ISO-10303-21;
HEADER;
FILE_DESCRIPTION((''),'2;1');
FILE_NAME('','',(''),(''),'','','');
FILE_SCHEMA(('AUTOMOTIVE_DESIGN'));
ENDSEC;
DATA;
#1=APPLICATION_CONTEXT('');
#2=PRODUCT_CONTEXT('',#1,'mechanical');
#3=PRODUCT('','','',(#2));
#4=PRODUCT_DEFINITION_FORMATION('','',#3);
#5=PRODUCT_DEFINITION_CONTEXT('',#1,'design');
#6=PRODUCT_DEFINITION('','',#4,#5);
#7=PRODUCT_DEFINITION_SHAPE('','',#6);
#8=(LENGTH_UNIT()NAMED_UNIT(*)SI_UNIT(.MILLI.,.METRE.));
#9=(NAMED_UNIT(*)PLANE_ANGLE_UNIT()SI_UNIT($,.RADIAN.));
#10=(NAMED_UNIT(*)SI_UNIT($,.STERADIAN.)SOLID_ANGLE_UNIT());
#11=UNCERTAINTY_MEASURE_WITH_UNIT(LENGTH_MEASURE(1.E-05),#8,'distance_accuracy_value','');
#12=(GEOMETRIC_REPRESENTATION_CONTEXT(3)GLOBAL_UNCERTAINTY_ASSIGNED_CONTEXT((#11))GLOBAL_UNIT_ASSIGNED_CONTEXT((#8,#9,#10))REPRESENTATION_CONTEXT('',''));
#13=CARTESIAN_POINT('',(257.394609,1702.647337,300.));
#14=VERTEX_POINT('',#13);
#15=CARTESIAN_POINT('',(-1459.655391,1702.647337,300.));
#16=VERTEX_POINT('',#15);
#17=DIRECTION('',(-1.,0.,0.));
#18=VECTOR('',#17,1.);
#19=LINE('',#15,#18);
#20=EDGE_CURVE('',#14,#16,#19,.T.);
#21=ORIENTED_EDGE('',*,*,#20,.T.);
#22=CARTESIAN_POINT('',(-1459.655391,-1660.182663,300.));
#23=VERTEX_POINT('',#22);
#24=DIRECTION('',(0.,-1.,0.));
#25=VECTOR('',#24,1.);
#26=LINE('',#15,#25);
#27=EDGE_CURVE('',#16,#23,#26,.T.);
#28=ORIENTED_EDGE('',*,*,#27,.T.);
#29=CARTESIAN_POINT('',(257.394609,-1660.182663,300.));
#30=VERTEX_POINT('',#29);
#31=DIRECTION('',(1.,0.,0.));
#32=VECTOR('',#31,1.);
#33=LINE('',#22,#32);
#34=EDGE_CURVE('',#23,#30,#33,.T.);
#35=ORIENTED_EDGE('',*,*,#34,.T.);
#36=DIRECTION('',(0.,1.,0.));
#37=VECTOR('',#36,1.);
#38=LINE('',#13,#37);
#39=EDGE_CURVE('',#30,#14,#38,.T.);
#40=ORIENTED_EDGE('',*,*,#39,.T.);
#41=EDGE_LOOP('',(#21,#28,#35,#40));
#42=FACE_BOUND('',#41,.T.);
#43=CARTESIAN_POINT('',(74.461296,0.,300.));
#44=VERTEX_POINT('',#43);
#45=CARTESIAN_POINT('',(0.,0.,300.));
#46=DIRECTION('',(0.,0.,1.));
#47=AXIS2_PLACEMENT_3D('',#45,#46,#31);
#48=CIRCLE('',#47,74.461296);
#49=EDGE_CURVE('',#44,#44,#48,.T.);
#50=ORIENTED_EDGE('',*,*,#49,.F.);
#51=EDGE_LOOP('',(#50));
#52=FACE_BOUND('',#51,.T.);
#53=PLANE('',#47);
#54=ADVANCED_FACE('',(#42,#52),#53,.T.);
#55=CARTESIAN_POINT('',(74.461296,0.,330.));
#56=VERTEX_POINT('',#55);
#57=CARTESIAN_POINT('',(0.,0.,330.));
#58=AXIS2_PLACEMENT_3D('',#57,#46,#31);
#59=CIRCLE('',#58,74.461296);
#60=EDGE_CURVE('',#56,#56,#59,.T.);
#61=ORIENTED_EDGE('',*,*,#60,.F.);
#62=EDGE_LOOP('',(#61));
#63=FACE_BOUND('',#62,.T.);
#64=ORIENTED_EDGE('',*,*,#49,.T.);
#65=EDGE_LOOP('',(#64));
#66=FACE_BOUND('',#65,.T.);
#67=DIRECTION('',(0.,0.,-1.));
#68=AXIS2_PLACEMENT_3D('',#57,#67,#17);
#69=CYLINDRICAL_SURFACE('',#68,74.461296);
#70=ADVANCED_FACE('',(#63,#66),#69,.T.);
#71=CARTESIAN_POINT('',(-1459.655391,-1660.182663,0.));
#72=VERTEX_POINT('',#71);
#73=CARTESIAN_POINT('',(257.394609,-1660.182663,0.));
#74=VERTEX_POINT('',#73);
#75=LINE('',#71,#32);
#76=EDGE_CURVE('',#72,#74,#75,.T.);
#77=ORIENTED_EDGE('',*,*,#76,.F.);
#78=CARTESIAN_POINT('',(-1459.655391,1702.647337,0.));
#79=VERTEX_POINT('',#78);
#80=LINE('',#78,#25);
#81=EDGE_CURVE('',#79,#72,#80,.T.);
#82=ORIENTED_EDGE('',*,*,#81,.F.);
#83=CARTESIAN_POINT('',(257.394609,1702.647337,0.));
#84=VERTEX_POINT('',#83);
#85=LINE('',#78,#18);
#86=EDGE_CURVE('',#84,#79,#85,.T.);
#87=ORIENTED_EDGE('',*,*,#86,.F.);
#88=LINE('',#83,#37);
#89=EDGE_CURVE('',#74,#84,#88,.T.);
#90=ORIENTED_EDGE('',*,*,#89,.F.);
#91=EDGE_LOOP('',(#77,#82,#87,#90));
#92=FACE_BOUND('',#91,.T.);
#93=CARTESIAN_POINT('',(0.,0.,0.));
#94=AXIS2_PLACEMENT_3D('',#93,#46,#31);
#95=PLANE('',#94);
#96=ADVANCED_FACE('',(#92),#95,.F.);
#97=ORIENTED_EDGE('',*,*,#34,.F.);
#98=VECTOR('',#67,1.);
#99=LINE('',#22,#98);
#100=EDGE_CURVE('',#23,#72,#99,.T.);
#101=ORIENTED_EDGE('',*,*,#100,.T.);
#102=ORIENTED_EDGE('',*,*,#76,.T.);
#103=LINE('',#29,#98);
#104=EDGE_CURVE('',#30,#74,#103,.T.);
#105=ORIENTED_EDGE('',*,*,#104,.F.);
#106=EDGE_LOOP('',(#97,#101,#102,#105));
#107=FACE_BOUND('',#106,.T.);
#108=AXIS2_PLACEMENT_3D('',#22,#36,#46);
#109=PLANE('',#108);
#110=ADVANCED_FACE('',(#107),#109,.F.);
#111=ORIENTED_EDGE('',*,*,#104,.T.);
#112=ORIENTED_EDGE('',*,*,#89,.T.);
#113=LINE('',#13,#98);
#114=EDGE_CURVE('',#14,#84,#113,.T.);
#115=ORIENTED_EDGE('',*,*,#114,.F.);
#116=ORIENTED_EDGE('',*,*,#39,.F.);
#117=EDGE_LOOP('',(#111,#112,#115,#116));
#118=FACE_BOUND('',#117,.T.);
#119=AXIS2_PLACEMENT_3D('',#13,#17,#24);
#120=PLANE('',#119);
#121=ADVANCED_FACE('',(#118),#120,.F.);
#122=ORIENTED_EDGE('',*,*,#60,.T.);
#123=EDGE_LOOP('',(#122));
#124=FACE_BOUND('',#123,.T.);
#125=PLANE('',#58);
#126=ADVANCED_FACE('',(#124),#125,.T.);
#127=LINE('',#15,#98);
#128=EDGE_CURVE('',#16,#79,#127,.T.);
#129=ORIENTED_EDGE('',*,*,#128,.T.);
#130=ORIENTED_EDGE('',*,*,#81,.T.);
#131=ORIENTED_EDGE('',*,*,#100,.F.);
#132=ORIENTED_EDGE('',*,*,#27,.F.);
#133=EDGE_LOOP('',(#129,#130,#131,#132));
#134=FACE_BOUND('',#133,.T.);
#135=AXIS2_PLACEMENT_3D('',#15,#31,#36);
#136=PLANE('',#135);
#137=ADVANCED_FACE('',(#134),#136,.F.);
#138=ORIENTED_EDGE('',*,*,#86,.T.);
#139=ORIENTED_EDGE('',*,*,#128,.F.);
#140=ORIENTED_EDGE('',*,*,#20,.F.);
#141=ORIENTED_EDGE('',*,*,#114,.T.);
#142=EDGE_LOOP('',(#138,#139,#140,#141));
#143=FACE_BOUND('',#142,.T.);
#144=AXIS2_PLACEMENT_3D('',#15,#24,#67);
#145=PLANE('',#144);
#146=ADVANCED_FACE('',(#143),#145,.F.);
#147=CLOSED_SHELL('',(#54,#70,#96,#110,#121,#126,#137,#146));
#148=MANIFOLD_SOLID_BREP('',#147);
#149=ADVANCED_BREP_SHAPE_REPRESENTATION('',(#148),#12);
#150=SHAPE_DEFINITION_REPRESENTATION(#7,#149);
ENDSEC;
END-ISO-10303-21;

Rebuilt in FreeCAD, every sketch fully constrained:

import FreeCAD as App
import Part
import Sketcher
Q = App.Units.Quantity

doc = App.newDocument("Part")
body = doc.addObject("PartDesign::Body", "Body")

# Sketch on XY plane
sketch1 = body.newObject("Sketcher::SketchObject", "Sketch")
sketch1.AttachmentSupport = (doc.getObject("XY_Plane"), [""])
sketch1.MapMode = "FlatFace"
sketch1.addGeometry(Part.LineSegment(App.Vector(-1460, 1703, 0), App.Vector(-1460, -1660, 0)), False)
sketch1.addGeometry(Part.LineSegment(App.Vector(-1460, -1660, 0), App.Vector(257, -1660, 0)), False)
sketch1.addGeometry(Part.LineSegment(App.Vector(257, -1660, 0), App.Vector(257, 1703, 0)), False)
sketch1.addGeometry(Part.LineSegment(App.Vector(257, 1703, 0), App.Vector(-1460, 1703, 0)), False)
sketch1.addConstraint(Sketcher.Constraint("Coincident", 0, 2, 1, 1))
sketch1.addConstraint(Sketcher.Constraint("Coincident", 1, 2, 2, 1))
sketch1.addConstraint(Sketcher.Constraint("Coincident", 2, 2, 3, 1))
sketch1.addConstraint(Sketcher.Constraint("Coincident", 3, 2, 0, 1))
sketch1.addConstraint(Sketcher.Constraint("Vertical", 0))
sketch1.addConstraint(Sketcher.Constraint("Horizontal", 1))
sketch1.addConstraint(Sketcher.Constraint("Vertical", 2))
sketch1.addConstraint(Sketcher.Constraint("Horizontal", 3))
sketch1.addConstraint(Sketcher.Constraint("DistanceX", 1, 1, 1, 2, Q("1717.05 mm")))
sketch1.addConstraint(Sketcher.Constraint("DistanceY", 0, 2, 0, 1, Q("3362.83 mm")))
sketch1.addConstraint(Sketcher.Constraint("DistanceX", 0, 2, -1, 1, Q("1459.655391 mm")))
sketch1.addConstraint(Sketcher.Constraint("DistanceY", 0, 2, -1, 1, Q("1660.182663 mm")))
pad1 = body.newObject("PartDesign::Pad", "Pad")
pad1.Profile = sketch1
pad1.Length = 300

# Sketch on XY plane
sketch2 = body.newObject("Sketcher::SketchObject", "Sketch001")
sketch2.AttachmentSupport = (doc.getObject("XY_Plane"), [""])
sketch2.MapMode = "FlatFace"
sketch2.AttachmentOffset = App.Placement(App.Vector(0, 0, 300), App.Rotation())
sketch2.addGeometry(Part.Circle(App.Vector(0, 0, 0), App.Vector(0, 0, 1), 74), False)
sketch2.addConstraint(Sketcher.Constraint("Coincident", 0, 3, -1, 1))
sketch2.addConstraint(Sketcher.Constraint("Diameter", 0, Q("148.922592 mm")))
pad2 = body.newObject("PartDesign::Pad", "Pad001")
pad2.Profile = sketch2
pad2.Length = 30

doc.recompute()
